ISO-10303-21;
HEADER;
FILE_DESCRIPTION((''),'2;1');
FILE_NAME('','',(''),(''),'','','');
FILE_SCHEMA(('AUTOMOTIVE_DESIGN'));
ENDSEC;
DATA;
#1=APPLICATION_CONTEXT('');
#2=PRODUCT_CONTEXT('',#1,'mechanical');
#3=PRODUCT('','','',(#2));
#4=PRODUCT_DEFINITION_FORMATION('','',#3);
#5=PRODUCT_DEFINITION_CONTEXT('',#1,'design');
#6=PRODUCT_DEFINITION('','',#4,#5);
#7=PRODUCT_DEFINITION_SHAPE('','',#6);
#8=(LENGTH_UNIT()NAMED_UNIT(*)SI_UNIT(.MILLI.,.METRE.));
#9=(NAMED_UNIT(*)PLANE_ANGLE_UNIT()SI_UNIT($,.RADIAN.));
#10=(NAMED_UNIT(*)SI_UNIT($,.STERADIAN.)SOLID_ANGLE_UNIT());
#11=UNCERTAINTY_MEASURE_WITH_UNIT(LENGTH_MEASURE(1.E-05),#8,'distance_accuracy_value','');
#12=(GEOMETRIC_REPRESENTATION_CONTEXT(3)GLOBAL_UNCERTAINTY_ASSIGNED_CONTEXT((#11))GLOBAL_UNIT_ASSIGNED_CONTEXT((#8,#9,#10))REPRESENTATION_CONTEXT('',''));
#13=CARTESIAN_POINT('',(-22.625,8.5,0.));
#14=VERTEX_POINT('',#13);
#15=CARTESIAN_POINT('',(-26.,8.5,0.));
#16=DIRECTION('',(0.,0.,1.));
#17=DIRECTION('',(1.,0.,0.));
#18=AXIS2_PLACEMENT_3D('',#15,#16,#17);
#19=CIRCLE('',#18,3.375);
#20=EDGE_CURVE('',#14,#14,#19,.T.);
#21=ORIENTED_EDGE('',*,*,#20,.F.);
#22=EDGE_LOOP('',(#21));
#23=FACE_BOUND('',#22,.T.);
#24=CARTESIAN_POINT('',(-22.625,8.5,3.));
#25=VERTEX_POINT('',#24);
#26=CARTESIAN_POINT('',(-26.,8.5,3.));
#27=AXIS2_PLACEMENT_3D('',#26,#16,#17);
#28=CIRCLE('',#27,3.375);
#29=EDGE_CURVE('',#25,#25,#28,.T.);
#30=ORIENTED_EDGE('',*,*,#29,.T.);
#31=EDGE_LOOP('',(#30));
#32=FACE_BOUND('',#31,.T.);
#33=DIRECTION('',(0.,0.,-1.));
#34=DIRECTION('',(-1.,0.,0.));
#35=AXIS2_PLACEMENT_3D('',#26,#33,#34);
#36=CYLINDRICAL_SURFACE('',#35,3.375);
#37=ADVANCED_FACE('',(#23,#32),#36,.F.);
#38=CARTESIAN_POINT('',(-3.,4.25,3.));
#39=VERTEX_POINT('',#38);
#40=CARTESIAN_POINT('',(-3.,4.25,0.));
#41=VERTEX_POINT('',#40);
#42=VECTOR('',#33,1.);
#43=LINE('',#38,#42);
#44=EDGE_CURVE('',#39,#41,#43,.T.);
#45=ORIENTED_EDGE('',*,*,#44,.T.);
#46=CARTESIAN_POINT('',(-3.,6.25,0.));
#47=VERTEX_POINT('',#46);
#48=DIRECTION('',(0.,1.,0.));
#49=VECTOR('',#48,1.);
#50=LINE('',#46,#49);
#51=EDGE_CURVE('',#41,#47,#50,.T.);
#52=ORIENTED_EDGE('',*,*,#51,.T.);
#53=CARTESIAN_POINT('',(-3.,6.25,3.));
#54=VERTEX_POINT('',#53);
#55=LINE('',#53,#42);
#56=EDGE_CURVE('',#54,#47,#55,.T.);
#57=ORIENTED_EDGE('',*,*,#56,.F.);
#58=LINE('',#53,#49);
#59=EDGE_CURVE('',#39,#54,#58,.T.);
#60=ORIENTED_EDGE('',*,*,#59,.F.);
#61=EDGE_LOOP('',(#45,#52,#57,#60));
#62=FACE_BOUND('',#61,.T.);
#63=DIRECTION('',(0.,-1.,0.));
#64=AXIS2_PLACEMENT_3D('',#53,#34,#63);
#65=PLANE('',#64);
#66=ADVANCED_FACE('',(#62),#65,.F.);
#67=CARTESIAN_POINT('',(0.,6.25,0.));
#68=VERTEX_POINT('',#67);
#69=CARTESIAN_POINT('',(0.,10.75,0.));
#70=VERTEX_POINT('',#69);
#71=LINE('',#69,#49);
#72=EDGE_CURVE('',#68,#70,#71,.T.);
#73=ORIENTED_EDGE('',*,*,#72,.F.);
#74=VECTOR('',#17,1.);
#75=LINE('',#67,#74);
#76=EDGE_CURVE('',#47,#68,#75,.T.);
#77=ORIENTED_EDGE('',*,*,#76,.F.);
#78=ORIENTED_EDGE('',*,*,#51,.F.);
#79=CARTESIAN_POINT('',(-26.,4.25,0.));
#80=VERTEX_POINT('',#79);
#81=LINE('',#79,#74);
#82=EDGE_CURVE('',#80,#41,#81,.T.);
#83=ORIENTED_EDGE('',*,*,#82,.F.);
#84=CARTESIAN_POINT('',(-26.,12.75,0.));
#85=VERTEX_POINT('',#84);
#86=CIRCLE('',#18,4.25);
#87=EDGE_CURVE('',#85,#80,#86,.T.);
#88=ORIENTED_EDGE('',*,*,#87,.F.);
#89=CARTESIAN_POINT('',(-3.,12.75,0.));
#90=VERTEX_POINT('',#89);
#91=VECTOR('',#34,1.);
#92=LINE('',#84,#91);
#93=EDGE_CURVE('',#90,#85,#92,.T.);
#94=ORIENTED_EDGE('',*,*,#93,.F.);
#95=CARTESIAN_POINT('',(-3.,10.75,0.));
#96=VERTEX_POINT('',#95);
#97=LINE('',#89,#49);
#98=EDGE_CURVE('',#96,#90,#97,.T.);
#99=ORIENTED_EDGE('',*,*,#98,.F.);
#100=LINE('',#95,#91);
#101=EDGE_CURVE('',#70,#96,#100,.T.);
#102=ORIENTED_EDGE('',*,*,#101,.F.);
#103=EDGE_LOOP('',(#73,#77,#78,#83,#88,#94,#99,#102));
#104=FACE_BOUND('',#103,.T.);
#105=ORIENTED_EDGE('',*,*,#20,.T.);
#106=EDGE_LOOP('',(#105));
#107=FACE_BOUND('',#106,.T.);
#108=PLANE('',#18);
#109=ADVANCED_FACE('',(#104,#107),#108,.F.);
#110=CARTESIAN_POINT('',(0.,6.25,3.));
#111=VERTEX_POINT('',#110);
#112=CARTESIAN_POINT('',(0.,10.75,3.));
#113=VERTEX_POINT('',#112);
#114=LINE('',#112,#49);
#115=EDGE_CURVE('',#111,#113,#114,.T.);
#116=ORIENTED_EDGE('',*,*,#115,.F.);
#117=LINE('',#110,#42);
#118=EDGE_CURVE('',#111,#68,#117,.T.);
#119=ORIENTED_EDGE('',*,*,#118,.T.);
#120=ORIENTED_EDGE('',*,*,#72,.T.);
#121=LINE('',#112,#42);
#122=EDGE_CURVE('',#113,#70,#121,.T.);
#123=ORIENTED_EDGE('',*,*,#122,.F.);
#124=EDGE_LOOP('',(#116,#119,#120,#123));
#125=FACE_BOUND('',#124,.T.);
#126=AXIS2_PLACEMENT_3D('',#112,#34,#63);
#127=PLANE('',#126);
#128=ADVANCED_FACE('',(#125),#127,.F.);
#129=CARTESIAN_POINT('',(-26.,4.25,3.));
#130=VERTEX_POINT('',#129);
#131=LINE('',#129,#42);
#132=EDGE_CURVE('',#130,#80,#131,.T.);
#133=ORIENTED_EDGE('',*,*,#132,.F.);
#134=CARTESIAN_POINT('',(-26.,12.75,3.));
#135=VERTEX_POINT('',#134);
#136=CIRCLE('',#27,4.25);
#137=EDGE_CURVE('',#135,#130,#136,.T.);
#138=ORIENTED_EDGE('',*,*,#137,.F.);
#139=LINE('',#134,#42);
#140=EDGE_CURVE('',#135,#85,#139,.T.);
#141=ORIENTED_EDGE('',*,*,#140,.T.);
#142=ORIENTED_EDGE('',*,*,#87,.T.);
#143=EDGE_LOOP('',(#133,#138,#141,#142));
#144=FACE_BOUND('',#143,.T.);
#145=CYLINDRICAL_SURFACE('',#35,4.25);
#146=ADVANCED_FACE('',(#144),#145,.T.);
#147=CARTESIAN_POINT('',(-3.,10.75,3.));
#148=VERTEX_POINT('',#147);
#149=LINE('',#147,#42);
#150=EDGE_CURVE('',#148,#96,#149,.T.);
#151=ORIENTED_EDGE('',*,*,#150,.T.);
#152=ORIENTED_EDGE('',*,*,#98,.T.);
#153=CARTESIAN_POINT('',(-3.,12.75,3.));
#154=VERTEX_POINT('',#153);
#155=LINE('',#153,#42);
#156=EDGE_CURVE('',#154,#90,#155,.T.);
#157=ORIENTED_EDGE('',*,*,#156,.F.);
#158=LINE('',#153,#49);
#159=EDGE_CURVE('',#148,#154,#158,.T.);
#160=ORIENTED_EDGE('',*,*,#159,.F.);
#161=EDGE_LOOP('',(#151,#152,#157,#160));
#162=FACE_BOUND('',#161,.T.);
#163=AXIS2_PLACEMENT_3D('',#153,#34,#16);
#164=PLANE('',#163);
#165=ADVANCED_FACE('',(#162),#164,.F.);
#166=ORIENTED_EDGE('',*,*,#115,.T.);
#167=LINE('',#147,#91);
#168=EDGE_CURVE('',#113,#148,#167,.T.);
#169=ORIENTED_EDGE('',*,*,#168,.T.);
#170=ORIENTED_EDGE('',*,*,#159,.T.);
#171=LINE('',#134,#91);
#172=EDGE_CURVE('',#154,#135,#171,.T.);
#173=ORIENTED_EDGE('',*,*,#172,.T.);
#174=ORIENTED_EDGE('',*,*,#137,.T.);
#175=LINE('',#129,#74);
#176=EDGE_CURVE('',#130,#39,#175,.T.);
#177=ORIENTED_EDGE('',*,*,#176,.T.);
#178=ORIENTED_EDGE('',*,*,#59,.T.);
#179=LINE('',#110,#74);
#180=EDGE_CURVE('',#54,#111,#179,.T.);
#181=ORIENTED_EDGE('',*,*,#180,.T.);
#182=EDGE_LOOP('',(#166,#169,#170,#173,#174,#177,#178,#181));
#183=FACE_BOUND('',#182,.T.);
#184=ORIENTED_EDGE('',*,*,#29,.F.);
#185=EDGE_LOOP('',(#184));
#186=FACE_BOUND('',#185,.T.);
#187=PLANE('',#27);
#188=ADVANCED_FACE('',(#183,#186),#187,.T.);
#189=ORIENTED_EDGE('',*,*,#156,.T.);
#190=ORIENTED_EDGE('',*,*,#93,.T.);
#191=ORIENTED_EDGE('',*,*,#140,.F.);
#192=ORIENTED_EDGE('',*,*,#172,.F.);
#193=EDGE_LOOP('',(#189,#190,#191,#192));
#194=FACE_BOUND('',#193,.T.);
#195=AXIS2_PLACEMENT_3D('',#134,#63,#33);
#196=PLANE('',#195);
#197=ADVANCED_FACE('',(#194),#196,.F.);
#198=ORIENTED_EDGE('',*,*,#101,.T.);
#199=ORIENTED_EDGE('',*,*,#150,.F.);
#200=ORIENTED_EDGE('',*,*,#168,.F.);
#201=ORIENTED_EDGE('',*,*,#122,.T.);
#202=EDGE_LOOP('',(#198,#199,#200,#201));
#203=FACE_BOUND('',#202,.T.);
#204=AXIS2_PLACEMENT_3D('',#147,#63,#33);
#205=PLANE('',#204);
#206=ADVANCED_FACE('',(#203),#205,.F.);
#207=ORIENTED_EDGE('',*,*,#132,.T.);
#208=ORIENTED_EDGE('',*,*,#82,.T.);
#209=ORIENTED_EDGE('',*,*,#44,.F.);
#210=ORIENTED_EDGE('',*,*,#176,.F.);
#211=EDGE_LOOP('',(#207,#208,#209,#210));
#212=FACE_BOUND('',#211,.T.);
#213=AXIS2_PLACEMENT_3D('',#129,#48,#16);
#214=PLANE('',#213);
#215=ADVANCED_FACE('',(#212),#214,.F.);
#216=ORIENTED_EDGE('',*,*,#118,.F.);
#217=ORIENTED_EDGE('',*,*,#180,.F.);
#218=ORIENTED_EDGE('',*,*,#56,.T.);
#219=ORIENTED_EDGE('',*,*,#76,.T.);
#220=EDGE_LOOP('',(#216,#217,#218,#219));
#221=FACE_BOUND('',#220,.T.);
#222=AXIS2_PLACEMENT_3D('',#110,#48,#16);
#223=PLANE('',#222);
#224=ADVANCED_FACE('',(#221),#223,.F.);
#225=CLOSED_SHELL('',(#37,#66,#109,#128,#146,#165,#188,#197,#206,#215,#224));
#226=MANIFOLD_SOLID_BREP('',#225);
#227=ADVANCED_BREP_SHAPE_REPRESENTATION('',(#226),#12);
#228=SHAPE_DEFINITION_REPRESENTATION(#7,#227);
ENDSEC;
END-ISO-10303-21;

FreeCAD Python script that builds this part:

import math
import FreeCAD as App
import Part
import Sketcher

V = App.Vector

doc = App.newDocument("Part")
params = doc.addObject("Spreadsheet::Sheet", "Params")
for row, (alias, value) in enumerate([
    ("sketch1_diameter", "6.75 mm"),
    ("sketch1_width", "23 mm"),
    ("sketch1_width2", "3 mm"),
    ("sketch1_height", "2 mm"),
    ("sketch1_radius", "4.25 mm"),
    ("pad1_length", "3 mm"),
], start=1):
    params.set(f"A{row}", alias)
    params.set(f"B{row}", "=" + value)
    params.setAlias(f"B{row}", alias)

body = doc.addObject("PartDesign::Body", "Body")

sketch1 = body.newObject("Sketcher::SketchObject", "Sketch")
sketch1.AttachmentSupport = (doc.getObject("XY_Plane"), [""])
sketch1.MapMode = "FlatFace"
sketch1.addGeometry(Part.LineSegment(V(-26, 4.2, 0), V(-3, 4.2, 0)), False)
sketch1.addGeometry(Part.LineSegment(V(-3, 4.2, 0), V(-3, 6.2, 0)), False)
sketch1.addGeometry(Part.LineSegment(V(-3, 6.2, 0), V(0, 6.2, 0)), False)
sketch1.addGeometry(Part.LineSegment(V(0, 6.2, 0), V(0, 10.8, 0)), False)
sketch1.addGeometry(Part.LineSegment(V(0, 10.8, 0), V(-3, 10.8, 0)), False)
sketch1.addGeometry(Part.LineSegment(V(-3, 10.8, 0), V(-3, 12.8, 0)), False)
sketch1.addGeometry(Part.LineSegment(V(-3, 12.8, 0), V(-26, 12.8, 0)), False)
sketch1.addGeometry(Part.ArcOfCircle(Part.Circle(V(-26, 8.5, 0), V(0, 0, 1), 4.2), math.radians(90), math.radians(270)), False)
sketch1.addGeometry(Part.Circle(V(-26, 8.5, 0), V(0, 0, 1), 3.4), False)
sketch1.addConstraint(Sketcher.Constraint("Coincident", 0, 2, 1, 1))
sketch1.addConstraint(Sketcher.Constraint("Coincident", 1, 2, 2, 1))
sketch1.addConstraint(Sketcher.Constraint("Coincident", 2, 2, 3, 1))
sketch1.addConstraint(Sketcher.Constraint("Coincident", 3, 2, 4, 1))
sketch1.addConstraint(Sketcher.Constraint("Coincident", 4, 2, 5, 1))
sketch1.addConstraint(Sketcher.Constraint("Coincident", 5, 2, 6, 1))
sketch1.addConstraint(Sketcher.Constraint("Tangent", 6, 2, 7, 1))
sketch1.addConstraint(Sketcher.Constraint("Tangent", 7, 2, 0, 1))
sketch1.addConstraint(Sketcher.Constraint("Horizontal", 0))
sketch1.addConstraint(Sketcher.Constraint("Vertical", 1))
sketch1.addConstraint(Sketcher.Constraint("Horizontal", 2))
sketch1.addConstraint(Sketcher.Constraint("Vertical", 3))
sketch1.addConstraint(Sketcher.Constraint("Horizontal", 4))
sketch1.addConstraint(Sketcher.Constraint("Vertical", 5))
sketch1.addConstraint(Sketcher.Constraint("Horizontal", 6))
sketch1.addConstraint(Sketcher.Constraint("Coincident", 8, 3, 7, 3))
sketch1.addConstraint(Sketcher.Constraint("PointOnObject", 2, 2, -2))
sketch1.addConstraint(Sketcher.Constraint("Vertical", 1, 2, 4, 2))
sketch1.addConstraint(Sketcher.Constraint("Equal", 1, 5))
sketch1.addConstraint(Sketcher.Constraint("Diameter", 8, 6.75))
sketch1.addConstraint(Sketcher.Constraint("DistanceX", 0, 1, 0, 2, 23.0))
sketch1.addConstraint(Sketcher.Constraint("DistanceX", 2, 1, 2, 2, 3.0))
sketch1.addConstraint(Sketcher.Constraint("DistanceY", 1, 1, 1, 2, 2.0))
sketch1.addConstraint(Sketcher.Constraint("Radius", 7, 4.25))
sketch1.addConstraint(Sketcher.Constraint("DistanceY", -1, 1, 7, 3, 8.5))
sketch1.setExpression("Constraints[19]", "Params.sketch1_diameter")
sketch1.setExpression("Constraints[20]", "Params.sketch1_width")
sketch1.setExpression("Constraints[21]", "Params.sketch1_width2")
sketch1.setExpression("Constraints[22]", "Params.sketch1_height")
sketch1.setExpression("Constraints[23]", "Params.sketch1_radius")
pad1 = body.newObject("PartDesign::Pad", "Pad")
pad1.Profile = sketch1
pad1.setExpression("Length", "Params.pad1_length")

doc.recompute()
